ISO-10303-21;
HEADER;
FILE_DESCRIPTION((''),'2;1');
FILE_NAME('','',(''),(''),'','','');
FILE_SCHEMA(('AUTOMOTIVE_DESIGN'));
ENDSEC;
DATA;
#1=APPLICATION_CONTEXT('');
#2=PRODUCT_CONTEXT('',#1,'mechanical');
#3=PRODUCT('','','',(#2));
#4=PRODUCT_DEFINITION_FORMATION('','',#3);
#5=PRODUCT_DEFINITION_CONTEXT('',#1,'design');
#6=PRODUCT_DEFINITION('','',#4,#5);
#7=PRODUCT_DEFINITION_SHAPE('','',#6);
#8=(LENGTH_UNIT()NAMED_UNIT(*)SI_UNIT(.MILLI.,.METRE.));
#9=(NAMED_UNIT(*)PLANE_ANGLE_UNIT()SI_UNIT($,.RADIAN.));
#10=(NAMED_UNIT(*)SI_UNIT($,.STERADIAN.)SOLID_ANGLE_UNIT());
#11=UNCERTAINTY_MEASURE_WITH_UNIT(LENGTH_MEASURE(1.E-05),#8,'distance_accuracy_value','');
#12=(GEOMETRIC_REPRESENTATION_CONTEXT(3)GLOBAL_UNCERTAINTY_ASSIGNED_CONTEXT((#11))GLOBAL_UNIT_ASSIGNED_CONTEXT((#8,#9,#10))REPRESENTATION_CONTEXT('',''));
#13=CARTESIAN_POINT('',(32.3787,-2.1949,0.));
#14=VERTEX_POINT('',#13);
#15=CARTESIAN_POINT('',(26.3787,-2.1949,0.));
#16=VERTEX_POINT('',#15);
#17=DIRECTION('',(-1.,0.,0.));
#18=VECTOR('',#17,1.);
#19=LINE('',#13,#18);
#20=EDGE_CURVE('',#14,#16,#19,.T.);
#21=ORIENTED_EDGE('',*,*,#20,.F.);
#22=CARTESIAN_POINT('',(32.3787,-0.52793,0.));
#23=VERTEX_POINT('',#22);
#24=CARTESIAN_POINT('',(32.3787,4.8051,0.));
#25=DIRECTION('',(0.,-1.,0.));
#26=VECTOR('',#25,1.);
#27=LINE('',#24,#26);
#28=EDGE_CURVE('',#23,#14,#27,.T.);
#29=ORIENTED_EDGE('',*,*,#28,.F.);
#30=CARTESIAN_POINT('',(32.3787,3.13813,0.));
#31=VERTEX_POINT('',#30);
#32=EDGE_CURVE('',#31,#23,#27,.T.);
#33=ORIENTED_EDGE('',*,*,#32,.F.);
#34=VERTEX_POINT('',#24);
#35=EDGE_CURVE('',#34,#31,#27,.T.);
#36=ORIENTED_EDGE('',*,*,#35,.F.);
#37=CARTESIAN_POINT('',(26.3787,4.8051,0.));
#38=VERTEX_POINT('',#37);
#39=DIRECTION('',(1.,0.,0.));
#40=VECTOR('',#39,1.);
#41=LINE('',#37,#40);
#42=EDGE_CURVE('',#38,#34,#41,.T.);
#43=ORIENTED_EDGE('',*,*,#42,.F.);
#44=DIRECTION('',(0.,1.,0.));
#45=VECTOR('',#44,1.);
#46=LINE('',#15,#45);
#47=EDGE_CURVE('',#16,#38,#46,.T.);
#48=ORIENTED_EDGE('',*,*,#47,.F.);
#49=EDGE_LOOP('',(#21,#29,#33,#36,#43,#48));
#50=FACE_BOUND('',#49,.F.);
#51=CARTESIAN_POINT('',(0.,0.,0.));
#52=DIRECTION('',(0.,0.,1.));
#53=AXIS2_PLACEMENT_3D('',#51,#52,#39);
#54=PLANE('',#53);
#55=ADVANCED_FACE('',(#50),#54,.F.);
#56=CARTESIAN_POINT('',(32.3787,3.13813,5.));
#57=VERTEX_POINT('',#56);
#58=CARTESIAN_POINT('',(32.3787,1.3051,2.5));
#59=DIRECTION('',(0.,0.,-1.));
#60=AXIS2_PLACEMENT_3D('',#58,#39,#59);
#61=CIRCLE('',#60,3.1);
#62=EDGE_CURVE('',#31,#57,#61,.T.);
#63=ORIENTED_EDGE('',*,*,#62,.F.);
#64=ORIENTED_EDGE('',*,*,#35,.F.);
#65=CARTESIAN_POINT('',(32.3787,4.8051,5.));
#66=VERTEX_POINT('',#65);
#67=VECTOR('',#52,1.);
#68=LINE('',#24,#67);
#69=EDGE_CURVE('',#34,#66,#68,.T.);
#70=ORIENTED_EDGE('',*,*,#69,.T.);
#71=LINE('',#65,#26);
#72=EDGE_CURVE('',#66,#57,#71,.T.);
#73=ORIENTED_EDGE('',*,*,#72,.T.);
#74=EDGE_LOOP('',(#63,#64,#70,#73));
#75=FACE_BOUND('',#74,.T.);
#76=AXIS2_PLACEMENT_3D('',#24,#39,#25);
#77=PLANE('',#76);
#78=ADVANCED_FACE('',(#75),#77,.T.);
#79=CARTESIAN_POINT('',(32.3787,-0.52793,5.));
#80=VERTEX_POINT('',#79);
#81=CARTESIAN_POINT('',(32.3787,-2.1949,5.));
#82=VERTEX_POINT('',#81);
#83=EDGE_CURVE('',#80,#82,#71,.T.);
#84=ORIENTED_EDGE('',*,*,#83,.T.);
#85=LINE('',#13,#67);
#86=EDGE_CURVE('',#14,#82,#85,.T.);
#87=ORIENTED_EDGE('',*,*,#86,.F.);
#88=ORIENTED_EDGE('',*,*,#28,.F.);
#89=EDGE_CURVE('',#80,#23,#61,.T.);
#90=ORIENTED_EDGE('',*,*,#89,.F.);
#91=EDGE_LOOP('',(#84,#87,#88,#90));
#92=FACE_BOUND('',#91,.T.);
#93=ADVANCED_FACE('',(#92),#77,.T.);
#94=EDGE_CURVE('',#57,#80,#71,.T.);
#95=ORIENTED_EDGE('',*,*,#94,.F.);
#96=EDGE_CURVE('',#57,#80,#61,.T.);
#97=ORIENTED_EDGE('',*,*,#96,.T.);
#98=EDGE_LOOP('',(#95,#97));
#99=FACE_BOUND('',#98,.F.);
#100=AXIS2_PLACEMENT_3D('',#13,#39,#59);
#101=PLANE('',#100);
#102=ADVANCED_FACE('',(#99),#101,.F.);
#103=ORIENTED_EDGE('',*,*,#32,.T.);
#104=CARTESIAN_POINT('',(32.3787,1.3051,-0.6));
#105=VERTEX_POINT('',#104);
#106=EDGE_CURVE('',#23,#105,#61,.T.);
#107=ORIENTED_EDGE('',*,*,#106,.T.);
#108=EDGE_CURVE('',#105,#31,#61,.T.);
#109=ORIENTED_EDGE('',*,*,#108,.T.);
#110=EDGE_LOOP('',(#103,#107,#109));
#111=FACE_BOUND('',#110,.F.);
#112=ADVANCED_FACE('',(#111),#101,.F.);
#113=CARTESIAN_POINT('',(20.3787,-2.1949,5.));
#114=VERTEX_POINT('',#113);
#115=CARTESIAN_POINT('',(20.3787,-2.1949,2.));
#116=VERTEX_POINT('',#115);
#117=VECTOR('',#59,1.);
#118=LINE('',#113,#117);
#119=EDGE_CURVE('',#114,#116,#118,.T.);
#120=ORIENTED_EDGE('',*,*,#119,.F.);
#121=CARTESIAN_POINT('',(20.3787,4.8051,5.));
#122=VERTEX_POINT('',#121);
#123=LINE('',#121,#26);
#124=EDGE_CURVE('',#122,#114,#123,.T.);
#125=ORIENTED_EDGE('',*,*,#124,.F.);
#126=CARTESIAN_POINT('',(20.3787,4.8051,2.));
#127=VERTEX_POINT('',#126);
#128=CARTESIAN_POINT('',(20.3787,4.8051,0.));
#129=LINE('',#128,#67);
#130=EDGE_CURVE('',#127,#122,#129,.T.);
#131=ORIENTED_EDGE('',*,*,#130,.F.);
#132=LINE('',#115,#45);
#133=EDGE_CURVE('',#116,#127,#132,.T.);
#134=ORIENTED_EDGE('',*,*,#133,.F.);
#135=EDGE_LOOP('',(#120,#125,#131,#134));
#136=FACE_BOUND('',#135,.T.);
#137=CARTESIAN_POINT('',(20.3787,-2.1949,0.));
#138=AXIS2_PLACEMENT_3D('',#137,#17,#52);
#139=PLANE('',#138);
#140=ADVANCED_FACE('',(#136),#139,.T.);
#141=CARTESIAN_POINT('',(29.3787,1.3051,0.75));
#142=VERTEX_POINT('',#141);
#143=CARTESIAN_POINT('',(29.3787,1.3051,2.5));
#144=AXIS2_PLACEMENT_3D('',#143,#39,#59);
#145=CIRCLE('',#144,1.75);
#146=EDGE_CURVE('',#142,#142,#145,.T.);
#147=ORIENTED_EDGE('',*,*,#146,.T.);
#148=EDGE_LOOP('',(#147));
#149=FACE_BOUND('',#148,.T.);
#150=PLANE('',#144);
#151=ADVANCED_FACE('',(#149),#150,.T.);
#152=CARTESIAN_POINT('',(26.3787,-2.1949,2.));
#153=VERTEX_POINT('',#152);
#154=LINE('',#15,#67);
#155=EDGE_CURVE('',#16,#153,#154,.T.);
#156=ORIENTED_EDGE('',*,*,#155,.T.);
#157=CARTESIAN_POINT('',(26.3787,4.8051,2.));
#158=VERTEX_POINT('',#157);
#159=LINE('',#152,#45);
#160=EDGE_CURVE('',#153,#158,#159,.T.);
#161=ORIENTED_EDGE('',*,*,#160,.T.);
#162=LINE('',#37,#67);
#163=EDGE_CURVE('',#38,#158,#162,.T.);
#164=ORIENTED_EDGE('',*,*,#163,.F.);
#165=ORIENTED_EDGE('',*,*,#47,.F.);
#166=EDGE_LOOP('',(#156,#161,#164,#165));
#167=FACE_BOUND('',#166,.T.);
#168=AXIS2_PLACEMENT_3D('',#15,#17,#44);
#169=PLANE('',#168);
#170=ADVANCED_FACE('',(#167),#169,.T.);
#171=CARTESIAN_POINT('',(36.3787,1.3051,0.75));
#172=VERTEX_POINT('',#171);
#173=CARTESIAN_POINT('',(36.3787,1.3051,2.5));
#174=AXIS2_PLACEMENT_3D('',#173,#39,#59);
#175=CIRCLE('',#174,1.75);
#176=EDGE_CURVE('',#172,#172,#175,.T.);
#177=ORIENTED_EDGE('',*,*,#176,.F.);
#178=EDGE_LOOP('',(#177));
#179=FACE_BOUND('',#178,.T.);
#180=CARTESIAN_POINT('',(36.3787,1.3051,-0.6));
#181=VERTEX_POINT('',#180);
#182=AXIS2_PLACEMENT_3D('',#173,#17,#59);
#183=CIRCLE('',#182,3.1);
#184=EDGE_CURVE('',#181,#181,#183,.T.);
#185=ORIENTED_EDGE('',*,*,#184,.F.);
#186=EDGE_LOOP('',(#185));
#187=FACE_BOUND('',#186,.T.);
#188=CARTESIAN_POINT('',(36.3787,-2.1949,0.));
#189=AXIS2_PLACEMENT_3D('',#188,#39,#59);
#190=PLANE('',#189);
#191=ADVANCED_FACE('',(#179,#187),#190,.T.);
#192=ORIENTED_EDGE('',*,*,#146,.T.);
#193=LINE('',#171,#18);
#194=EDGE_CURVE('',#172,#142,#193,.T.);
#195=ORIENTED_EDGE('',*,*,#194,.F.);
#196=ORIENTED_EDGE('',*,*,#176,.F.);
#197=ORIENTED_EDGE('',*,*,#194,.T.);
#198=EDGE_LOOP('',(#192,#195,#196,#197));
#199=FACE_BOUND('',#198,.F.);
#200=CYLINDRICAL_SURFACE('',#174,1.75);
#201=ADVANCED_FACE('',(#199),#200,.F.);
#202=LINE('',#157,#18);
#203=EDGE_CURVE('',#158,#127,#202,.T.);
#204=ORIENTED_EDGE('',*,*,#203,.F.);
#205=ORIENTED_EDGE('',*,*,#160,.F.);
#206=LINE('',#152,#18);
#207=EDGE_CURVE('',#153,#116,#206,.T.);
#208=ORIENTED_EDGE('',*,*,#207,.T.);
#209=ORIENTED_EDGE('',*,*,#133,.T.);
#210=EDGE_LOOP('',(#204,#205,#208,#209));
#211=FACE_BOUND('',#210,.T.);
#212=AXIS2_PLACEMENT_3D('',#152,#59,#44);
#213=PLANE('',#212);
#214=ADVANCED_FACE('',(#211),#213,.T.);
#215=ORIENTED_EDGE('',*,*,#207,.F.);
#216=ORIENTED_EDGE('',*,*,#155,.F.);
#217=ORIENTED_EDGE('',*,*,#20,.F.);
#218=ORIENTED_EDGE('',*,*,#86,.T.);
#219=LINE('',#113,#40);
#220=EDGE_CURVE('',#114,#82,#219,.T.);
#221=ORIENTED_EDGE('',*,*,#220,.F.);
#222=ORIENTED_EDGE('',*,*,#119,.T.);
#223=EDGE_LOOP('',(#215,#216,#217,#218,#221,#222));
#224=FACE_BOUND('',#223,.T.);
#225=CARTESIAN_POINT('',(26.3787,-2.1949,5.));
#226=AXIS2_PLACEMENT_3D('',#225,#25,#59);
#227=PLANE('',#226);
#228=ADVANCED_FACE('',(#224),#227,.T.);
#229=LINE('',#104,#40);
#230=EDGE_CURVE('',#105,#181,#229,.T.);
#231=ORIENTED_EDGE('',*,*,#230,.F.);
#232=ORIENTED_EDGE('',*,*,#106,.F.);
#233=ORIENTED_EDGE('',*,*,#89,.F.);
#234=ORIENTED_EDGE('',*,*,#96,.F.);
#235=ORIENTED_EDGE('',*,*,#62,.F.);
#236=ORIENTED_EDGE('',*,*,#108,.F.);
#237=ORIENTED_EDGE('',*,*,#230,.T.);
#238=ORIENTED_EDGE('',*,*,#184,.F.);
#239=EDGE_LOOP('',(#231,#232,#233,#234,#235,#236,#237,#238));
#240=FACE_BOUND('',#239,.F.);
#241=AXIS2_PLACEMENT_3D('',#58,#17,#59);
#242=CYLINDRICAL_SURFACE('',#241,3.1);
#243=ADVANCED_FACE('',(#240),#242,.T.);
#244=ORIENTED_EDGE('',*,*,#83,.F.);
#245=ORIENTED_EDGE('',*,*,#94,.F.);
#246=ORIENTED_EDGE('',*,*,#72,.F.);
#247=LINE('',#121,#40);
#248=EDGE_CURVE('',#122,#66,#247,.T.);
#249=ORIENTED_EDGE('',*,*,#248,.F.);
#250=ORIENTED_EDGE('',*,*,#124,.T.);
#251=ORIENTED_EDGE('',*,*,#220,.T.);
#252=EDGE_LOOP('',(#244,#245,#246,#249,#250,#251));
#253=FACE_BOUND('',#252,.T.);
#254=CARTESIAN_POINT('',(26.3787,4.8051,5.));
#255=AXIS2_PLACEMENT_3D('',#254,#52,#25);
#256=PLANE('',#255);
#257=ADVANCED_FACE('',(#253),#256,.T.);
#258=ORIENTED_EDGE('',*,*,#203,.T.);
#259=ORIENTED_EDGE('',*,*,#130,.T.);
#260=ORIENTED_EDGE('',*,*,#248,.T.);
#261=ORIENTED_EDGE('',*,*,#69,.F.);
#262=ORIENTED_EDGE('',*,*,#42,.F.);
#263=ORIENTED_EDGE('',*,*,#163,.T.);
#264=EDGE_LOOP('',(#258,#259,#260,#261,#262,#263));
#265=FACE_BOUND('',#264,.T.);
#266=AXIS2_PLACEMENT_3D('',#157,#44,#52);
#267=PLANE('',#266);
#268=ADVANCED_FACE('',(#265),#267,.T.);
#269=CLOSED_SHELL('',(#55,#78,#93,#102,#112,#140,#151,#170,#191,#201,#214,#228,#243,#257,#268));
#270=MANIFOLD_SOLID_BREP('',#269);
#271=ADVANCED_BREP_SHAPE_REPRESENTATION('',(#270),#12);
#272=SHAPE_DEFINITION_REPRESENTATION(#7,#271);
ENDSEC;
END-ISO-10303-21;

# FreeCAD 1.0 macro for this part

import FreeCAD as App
import Part
import Sketcher

V = App.Vector


def add_polygon(sketch, points):
    """Adds a closed chain of lines whose ends are joined by coincident constraints."""
    first, n = sketch.GeometryCount, len(points)
    for a, b in zip(points, points[1:] + points[:1]):
        sketch.addGeometry(Part.LineSegment(App.Vector(*a, 0), App.Vector(*b, 0)), False)
    for i in range(n):
        sketch.addConstraint(Sketcher.Constraint("Coincident", first + i, 2, first + (i + 1) % n, 1))

doc = App.newDocument("Part")
body = doc.addObject("PartDesign::Body", "Body")

# Sketch on XY plane
sketch1 = body.newObject("Sketcher::SketchObject", "Sketch")
sketch1.AttachmentSupport = (doc.getObject("XY_Plane"), [""])
sketch1.MapMode = "FlatFace"
add_polygon(sketch1, [(32, 5), (26, 5), (26, -2), (32, -2)])  # lines 0-3
sketch1.addConstraint(Sketcher.Constraint("Horizontal", 0))
sketch1.addConstraint(Sketcher.Constraint("Vertical", 1))
sketch1.addConstraint(Sketcher.Constraint("Horizontal", 2))
sketch1.addConstraint(Sketcher.Constraint("Vertical", 3))
sketch1.addConstraint(Sketcher.Constraint("DistanceX", 0, 2, 0, 1, 6.0))
sketch1.addConstraint(Sketcher.Constraint("DistanceY", 1, 2, 1, 1, 7.0))
sketch1.addConstraint(Sketcher.Constraint("DistanceY", -1, 1, 0, 2, 4.805))
sketch1.addConstraint(Sketcher.Constraint("DistanceX", -1, 1, 0, 2, 26.3787))
pad1 = body.newObject("PartDesign::Pad", "Pad")
pad1.Profile = sketch1
pad1.Length = 5

# Sketch on YZ plane
sketch2 = body.newObject("Sketcher::SketchObject", "Sketch001")
sketch2.AttachmentSupport = (doc.getObject("YZ_Plane"), [""])
sketch2.MapMode = "FlatFace"
sketch2.AttachmentOffset = App.Placement(V(0, 0, 32.3787), App.Rotation())
sketch2.addGeometry(Part.Circle(V(1.3, 2.5, 0), V(0, 0, 1), 3.1), False)
sketch2.addConstraint(Sketcher.Constraint("Diameter", 0, 6.2))
sketch2.addConstraint(Sketcher.Constraint("DistanceY", -1, 1, 0, 3, 2.5))
sketch2.addConstraint(Sketcher.Constraint("DistanceX", -1, 1, 0, 3, 1.305))
pad2 = body.newObject("PartDesign::Pad", "Pad001")
pad2.Profile = sketch2
pad2.Length = 4

# Sketch on YZ plane
sketch3 = body.newObject("Sketcher::SketchObject", "Sketch002")
sketch3.AttachmentSupport = (doc.getObject("YZ_Plane"), [""])
sketch3.MapMode = "FlatFace"
sketch3.AttachmentOffset = App.Placement(V(0, 0, 36.3787), App.Rotation())
sketch3.addGeometry(Part.Circle(V(1.3, 2.5, 0), V(0, 0, 1), 1.8), False)
sketch3.addConstraint(Sketcher.Constraint("Diameter", 0, 3.5))
sketch3.addConstraint(Sketcher.Constraint("DistanceY", -1, 1, 0, 3, 2.5))
sketch3.addConstraint(Sketcher.Constraint("DistanceX", -1, 1, 0, 3, 1.305))
pocket1 = body.newObject("PartDesign::Pocket", "Pocket")
pocket1.Profile = sketch3
pocket1.Length = 7

# Sketch on YZ plane
sketch4 = body.newObject("Sketcher::SketchObject", "Sketch003")
sketch4.AttachmentSupport = (doc.getObject("YZ_Plane"), [""])
sketch4.MapMode = "FlatFace"
sketch4.AttachmentOffset = App.Placement(V(0, 0, 26.3787), App.Rotation())
add_polygon(sketch4, [(4.8, 5), (4.8, 2), (-2.2, 2), (-2.2, 5)])  # lines 0-3
sketch4.addConstraint(Sketcher.Constraint("Vertical", 0))
sketch4.addConstraint(Sketcher.Constraint("Horizontal", 1))
sketch4.addConstraint(Sketcher.Constraint("Vertical", 2))
sketch4.addConstraint(Sketcher.Constraint("Horizontal", 3))
sketch4.addConstraint(Sketcher.Constraint("DistanceY", 0, 2, 0, 1, 3.0))
sketch4.addConstraint(Sketcher.Constraint("DistanceX", 1, 2, 1, 1, 7.0))
sketch4.addConstraint(Sketcher.Constraint("DistanceY", -1, 1, 0, 2, 2.0))
sketch4.addConstraint(Sketcher.Constraint("DistanceX", -1, 1, 0, 2, 4.805))
pad3 = body.newObject("PartDesign::Pad", "Pad002")
pad3.Profile = sketch4
pad3.Length = 6
pad3.Reversed = True

doc.recompute()
